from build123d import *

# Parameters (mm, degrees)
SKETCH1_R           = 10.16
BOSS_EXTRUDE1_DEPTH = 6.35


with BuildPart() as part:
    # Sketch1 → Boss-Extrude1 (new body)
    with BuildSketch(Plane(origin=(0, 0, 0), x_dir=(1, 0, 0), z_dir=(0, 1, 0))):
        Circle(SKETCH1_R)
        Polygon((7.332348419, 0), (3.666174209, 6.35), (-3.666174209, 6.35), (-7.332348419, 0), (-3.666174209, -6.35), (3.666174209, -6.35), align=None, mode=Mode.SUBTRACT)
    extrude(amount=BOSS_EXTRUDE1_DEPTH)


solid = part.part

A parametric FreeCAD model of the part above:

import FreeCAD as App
import Part
import Sketcher

V = App.Vector
Q = App.Units.Quantity

doc = App.newDocument("Part")
body = doc.addObject("PartDesign::Body", "Body")

sketch1 = body.newObject("Sketcher::SketchObject", "Sketch")
sketch1.AttachmentSupport = (doc.getObject("XZ_Plane"), [""])
sketch1.MapMode = "FlatFace"
sketch1.addGeometry(Part.Circle(V(0, 0, 0), V(0, 0, 1), 10), False)
sketch1.addGeometry(Part.LineSegment(V(4, -6, 0), V(7, 0, 0)), False)
sketch1.addGeometry(Part.LineSegment(V(7, 0, 0), V(4, 6, 0)), False)
sketch1.addGeometry(Part.LineSegment(V(4, 6, 0), V(-4, 6, 0)), False)
sketch1.addGeometry(Part.LineSegment(V(-4, 6, 0), V(-7, 0, 0)), False)
sketch1.addGeometry(Part.LineSegment(V(-7, 0, 0), V(-4, -6, 0)), False)
sketch1.addGeometry(Part.LineSegment(V(-4, -6, 0), V(4, -6, 0)), False)
sketch1.addConstraint(Sketcher.Constraint("Coincident", 1, 2, 2, 1))
sketch1.addConstraint(Sketcher.Constraint("Coincident", 2, 2, 3, 1))
sketch1.addConstraint(Sketcher.Constraint("Coincident", 3, 2, 4, 1))
sketch1.addConstraint(Sketcher.Constraint("Coincident", 4, 2, 5, 1))
sketch1.addConstraint(Sketcher.Constraint("Coincident", 5, 2, 6, 1))
sketch1.addConstraint(Sketcher.Constraint("Coincident", 6, 2, 1, 1))
sketch1.addConstraint(Sketcher.Constraint("Horizontal", 3))
sketch1.addConstraint(Sketcher.Constraint("Horizontal", 6))
sketch1.addConstraint(Sketcher.Constraint("Coincident", 0, 3, -1, 1))
sketch1.addConstraint(Sketcher.Constraint("Symmetric", 1, 2, 4, 2, -1, 1))
sketch1.addConstraint(Sketcher.Constraint("Symmetric", 2, 2, 5, 2, -1, 1))
sketch1.addConstraint(Sketcher.Constraint("PointOnObject", 1, 2, -1))
sketch1.addConstraint(Sketcher.Constraint("Parallel", 1, 4))
sketch1.addConstraint(Sketcher.Constraint("Vertical", 3, 2, 5, 2))
sketch1.addConstraint(Sketcher.Constraint("Diameter", 0, Q("0.8 in")))
sketch1.addConstraint(Sketcher.Constraint("Angle", 1, Q("60 deg")))
sketch1.addConstraint(Sketcher.Constraint("DistanceY", 5, 2, 3, 2, Q("0.5 in")))
sketch1.addConstraint(Sketcher.Constraint("DistanceX", 3, 2, 3, 1, Q("7.332348 mm")))
pad1 = body.newObject("PartDesign::Pad", "Pad")
pad1.Profile = sketch1
pad1.Length = Q("0.25 in")
pad1.Reversed = True

doc.recompute()
